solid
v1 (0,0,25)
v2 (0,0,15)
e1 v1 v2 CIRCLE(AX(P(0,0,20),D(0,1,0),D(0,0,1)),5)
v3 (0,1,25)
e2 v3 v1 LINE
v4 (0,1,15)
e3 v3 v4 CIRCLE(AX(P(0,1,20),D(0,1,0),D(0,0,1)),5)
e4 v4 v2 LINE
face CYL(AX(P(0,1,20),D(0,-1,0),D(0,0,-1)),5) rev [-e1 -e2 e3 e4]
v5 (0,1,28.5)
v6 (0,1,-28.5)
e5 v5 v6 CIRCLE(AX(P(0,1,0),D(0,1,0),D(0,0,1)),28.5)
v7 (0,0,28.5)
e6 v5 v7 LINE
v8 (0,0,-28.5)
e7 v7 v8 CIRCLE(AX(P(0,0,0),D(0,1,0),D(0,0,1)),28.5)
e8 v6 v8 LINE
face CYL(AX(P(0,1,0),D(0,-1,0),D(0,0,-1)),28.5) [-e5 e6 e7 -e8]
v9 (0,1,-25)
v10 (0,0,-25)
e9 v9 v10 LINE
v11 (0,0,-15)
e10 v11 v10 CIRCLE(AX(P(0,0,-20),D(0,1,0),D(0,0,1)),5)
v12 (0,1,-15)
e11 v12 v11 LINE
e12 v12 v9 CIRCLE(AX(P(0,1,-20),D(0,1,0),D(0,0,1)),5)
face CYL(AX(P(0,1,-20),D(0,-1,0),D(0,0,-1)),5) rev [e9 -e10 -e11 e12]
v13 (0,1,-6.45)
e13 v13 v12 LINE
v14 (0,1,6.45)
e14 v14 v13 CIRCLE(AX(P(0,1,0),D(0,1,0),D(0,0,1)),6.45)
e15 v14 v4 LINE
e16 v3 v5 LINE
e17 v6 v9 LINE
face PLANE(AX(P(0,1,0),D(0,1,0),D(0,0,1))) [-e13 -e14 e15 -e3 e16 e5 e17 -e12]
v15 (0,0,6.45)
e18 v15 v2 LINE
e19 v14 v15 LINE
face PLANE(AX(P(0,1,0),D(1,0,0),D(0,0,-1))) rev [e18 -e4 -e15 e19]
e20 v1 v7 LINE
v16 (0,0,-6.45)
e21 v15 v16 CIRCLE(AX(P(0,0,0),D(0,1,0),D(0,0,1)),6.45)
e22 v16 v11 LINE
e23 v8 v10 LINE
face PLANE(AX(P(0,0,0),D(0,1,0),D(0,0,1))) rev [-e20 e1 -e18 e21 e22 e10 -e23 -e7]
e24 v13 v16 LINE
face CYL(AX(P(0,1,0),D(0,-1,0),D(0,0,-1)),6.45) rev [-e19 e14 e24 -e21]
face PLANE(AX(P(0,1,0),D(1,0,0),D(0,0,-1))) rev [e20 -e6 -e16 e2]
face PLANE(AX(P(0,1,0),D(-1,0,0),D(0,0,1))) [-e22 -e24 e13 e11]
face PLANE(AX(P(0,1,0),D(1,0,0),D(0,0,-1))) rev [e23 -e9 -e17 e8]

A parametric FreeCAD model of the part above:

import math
import FreeCAD as App
import Part
import Sketcher
from FreeCAD import Vector
Q = App.Units.Quantity

doc = App.newDocument("Part")
params = doc.addObject("Spreadsheet::Sheet", "Params")
for row, (alias, value) in enumerate([
    ("sketch1_radius", "5 mm"),
    ("sketch1_radius2", "28.5 mm"),
    ("sketch1_radius3", "6.45 mm"),
    ("sketch1_height", "3.5 mm"),
    ("pad1_length", "1 mm"),
], start=1):
    params.set(f"A{row}", alias)
    params.set(f"B{row}", "=" + value)
    params.setAlias(f"B{row}", alias)

body = doc.addObject("PartDesign::Body", "Body")

# Sketch on XZ plane
sketch1 = body.newObject("Sketcher::SketchObject", "Sketch")
sketch1.AttachmentSupport = (doc.getObject("XZ_Plane"), [""])
sketch1.MapMode = "FlatFace"
sketch1.addGeometry(Part.LineSegment(Vector(0, -15, 0), Vector(0, -6.45, 0)), False)
sketch1.addGeometry(Part.ArcOfCircle(Part.Circle(Vector(0, 0, 0), Vector(0, 0, 1), 6.45), math.radians(-90), math.radians(90)), False)
sketch1.addGeometry(Part.LineSegment(Vector(0, 6.45, 0), Vector(0, 15, 0)), False)
sketch1.addGeometry(Part.ArcOfCircle(Part.Circle(Vector(0, 20, 0), Vector(0, 0, 1), 5), math.radians(-90), math.radians(90)), False)
sketch1.addGeometry(Part.LineSegment(Vector(0, 25, 0), Vector(0, 28.5, 0)), False)
sketch1.addGeometry(Part.ArcOfCircle(Part.Circle(Vector(0, 0, 0), Vector(0, 0, 1), 28.5), math.radians(-90), math.radians(90)), False)
sketch1.addGeometry(Part.LineSegment(Vector(0, -28.5, 0), Vector(0, -25, 0)), False)
sketch1.addGeometry(Part.ArcOfCircle(Part.Circle(Vector(0, -20, 0), Vector(0, 0, 1), 5), math.radians(-90), math.radians(90)), False)
sketch1.addConstraint(Sketcher.Constraint("Coincident", 0, 2, 1, 1))
sketch1.addConstraint(Sketcher.Constraint("Coincident", 1, 2, 2, 1))
sketch1.addConstraint(Sketcher.Constraint("Coincident", 2, 2, 3, 1))
sketch1.addConstraint(Sketcher.Constraint("Coincident", 3, 2, 4, 1))
sketch1.addConstraint(Sketcher.Constraint("Coincident", 4, 2, 5, 2))
sketch1.addConstraint(Sketcher.Constraint("Coincident", 5, 1, 6, 1))
sketch1.addConstraint(Sketcher.Constraint("Coincident", 6, 2, 7, 1))
sketch1.addConstraint(Sketcher.Constraint("Coincident", 7, 2, 0, 1))
sketch1.addConstraint(Sketcher.Constraint("Vertical", 0))
sketch1.addConstraint(Sketcher.Constraint("Vertical", 2))
sketch1.addConstraint(Sketcher.Constraint("Vertical", 4))
sketch1.addConstraint(Sketcher.Constraint("Vertical", 6))
sketch1.addConstraint(Sketcher.Constraint("Coincident", 1, 3, -1, 1))
sketch1.addConstraint(Sketcher.Constraint("Coincident", 5, 3, -1, 1))
sketch1.addConstraint(Sketcher.Constraint("Equal", 3, 7))
sketch1.addConstraint(Sketcher.Constraint("Symmetric", 3, 3, 7, 3, -1, 1))
sketch1.addConstraint(Sketcher.Constraint("PointOnObject", 3, 3, -2))
sketch1.addConstraint(Sketcher.Constraint("PointOnObject", 0, 2, -2))
sketch1.addConstraint(Sketcher.Constraint("PointOnObject", 1, 2, -2))
sketch1.addConstraint(Sketcher.Constraint("PointOnObject", 3, 2, -2))
sketch1.addConstraint(Sketcher.Constraint("PointOnObject", 5, 1, -2))
sketch1.addConstraint(Sketcher.Constraint("Radius", 3, Q("5 mm")))
sketch1.addConstraint(Sketcher.Constraint("Radius", 5, Q("28.5 mm")))
sketch1.addConstraint(Sketcher.Constraint("Radius", 1, Q("6.45 mm")))
sketch1.addConstraint(Sketcher.Constraint("DistanceY", 4, 1, 4, 2, Q("3.5 mm")))
sketch1.setExpression("Constraints[21]", "Params.sketch1_radius")
sketch1.setExpression("Constraints[22]", "Params.sketch1_radius2")
sketch1.setExpression("Constraints[23]", "Params.sketch1_radius3")
sketch1.setExpression("Constraints[24]", "Params.sketch1_height")
pad1 = body.newObject("PartDesign::Pad", "Pad")
pad1.Profile = sketch1
pad1.setExpression("Length", "Params.pad1_length")
pad1.Reversed = True

doc.recompute()
